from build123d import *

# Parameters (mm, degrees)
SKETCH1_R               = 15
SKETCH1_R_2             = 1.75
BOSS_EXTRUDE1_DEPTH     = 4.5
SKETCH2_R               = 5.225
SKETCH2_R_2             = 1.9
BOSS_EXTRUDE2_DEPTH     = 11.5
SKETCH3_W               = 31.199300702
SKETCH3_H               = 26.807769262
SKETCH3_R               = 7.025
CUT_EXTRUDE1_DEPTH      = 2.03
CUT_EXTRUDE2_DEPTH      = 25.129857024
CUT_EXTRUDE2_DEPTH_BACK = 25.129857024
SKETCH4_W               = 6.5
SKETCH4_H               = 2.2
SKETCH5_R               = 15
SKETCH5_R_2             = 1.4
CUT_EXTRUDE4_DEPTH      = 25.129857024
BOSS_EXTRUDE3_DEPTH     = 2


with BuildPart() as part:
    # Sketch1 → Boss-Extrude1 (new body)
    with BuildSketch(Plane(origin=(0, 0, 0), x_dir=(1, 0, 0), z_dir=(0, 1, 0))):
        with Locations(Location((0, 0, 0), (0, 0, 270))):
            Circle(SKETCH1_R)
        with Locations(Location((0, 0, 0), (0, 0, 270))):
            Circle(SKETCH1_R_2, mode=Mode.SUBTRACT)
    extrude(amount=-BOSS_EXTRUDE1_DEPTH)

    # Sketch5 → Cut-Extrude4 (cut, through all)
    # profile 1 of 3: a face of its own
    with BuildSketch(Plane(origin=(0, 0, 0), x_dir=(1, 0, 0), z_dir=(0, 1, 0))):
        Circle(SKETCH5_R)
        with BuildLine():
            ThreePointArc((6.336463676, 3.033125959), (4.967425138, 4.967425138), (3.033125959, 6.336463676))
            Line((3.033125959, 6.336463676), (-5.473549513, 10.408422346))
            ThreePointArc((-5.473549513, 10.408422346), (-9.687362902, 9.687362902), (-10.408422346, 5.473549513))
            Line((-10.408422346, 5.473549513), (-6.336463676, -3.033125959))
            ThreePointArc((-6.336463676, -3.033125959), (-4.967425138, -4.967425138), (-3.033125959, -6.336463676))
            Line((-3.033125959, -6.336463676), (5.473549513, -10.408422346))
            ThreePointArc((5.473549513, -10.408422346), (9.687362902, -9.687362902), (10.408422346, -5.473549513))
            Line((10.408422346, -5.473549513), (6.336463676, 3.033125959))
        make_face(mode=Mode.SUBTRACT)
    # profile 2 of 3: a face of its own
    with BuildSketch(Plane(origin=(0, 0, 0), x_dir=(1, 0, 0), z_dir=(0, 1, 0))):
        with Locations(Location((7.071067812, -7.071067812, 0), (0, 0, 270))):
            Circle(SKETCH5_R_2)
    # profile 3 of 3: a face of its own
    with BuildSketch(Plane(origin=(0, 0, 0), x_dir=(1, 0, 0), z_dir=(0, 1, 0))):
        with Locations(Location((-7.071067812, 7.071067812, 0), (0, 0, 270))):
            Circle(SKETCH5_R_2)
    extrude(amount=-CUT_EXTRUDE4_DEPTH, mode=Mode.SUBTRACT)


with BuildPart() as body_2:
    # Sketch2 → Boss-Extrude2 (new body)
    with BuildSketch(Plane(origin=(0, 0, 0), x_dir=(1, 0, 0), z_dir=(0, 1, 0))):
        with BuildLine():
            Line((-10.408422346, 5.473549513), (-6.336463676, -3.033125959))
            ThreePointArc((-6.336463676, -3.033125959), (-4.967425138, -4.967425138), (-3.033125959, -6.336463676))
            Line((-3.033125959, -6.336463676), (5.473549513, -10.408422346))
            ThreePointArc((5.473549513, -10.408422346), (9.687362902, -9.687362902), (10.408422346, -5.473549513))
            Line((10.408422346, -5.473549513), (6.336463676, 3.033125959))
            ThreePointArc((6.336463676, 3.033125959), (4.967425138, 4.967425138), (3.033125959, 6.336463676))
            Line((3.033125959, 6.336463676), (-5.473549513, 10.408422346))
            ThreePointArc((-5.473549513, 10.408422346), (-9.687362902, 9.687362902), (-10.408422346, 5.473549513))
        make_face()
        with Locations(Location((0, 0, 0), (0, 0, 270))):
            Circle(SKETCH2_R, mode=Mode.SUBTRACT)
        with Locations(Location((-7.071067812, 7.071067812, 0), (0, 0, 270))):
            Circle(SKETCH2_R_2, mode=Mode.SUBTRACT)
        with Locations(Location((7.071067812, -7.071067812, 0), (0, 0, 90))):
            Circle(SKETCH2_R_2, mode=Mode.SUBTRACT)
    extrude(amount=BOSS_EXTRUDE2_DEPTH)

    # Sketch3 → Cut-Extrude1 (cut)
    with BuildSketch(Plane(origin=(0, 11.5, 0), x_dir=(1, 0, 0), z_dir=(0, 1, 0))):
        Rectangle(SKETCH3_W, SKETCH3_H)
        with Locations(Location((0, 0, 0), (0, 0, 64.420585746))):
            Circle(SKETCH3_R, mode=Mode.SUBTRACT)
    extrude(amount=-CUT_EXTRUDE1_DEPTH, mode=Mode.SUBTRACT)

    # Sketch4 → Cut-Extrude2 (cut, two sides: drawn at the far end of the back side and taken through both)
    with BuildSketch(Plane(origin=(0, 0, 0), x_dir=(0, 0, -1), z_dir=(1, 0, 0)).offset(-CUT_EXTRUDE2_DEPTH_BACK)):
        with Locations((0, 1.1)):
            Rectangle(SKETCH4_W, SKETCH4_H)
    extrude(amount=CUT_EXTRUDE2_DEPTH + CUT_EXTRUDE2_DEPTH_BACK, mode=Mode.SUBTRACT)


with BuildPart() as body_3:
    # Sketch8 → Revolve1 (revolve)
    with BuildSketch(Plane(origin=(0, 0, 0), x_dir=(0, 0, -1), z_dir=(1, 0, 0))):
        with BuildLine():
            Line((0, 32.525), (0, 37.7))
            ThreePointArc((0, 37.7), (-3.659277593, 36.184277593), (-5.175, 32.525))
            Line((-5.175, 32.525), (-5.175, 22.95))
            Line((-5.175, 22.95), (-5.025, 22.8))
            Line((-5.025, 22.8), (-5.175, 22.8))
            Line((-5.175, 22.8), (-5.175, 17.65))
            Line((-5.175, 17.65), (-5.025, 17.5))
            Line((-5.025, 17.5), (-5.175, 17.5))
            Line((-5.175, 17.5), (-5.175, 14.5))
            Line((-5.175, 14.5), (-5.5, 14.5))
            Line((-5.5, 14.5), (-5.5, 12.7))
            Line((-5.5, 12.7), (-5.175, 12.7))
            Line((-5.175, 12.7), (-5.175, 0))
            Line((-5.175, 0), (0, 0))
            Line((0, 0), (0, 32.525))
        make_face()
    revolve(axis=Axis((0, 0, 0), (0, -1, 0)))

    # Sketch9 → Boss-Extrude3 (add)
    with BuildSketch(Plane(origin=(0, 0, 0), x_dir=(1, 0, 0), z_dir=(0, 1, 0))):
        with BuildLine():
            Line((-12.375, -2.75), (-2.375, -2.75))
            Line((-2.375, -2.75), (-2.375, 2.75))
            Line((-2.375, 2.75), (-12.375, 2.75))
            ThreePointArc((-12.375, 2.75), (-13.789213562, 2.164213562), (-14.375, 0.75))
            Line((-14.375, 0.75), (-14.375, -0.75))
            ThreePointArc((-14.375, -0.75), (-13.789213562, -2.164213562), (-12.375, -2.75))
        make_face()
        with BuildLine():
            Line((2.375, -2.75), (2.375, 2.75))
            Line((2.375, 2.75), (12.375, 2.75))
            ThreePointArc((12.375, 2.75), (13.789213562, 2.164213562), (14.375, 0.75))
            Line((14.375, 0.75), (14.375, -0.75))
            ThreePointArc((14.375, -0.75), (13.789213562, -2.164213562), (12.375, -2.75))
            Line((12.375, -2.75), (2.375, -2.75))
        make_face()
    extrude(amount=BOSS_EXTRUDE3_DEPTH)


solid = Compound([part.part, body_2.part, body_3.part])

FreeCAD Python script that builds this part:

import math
import FreeCAD as App
import Part
import Sketcher

V = App.Vector
Q = App.Units.Quantity

doc = App.newDocument("Part")
body = doc.addObject("PartDesign::Body", "Body")

sketch1 = doc.addObject("Sketcher::SketchObject", "Sketch")
body.addObject(sketch1)
sketch1.AttachmentSupport = (doc.XZ_Plane, [""])
sketch1.MapMode = "FlatFace"
sketch1.addGeometry([
    Part.Circle(V(0, 0, 0), V(0, 0, 1), 15),
    Part.Circle(V(0, 0, 0), V(0, 0, 1), 1.8),
], False)
sketch1.addConstraint([
    Sketcher.Constraint("Coincident", 0, 3, -1, 1),
    Sketcher.Constraint("Coincident", 1, 3, -1, 1),
    Sketcher.Constraint("Diameter", 0, 30.0),
    Sketcher.Constraint("Diameter", 1, 3.5),
])
pad1 = doc.addObject("PartDesign::Pad", "Pad")
body.addObject(pad1)
pad1.Profile = sketch1
pad1.Length = 4.5

sketch2 = doc.addObject("Sketcher::SketchObject", "Sketch001")
body.addObject(sketch2)
sketch2.AttachmentSupport = (doc.XZ_Plane, [""])
sketch2.MapMode = "FlatFace"
sketch2.addGeometry([
    Part.Circle(V(0, 0, 0), V(0, 0, 1), 15),
    Part.ArcOfCircle(Part.Circle(V(0, 0, 0), V(0, 0, 1), 7), math.radians(-64), math.radians(-26)),
    Part.LineSegment(V(6.3, -3, 0), V(10.4, 5.5, 0)),
    Part.ArcOfCircle(Part.Circle(V(7.1, 7.1, 0), V(0, 0, 1), 3.7), math.radians(-26), math.radians(116)),
    Part.LineSegment(V(5.5, 10.4, 0), V(-3, 6.3, 0)),
    Part.ArcOfCircle(Part.Circle(V(0, 0, 0), V(0, 0, 1), 7), math.radians(116), math.radians(154)),
    Part.LineSegment(V(-6.3, 3, 0), V(-10.4, -5.5, 0)),
    Part.ArcOfCircle(Part.Circle(V(-7.1, -7.1, 0), V(0, 0, 1), 3.7), math.radians(154), math.radians(296)),
    Part.LineSegment(V(-5.5, -10.4, 0), V(3, -6.3, 0)),
    Part.Circle(V(7.1, 7.1, 0), V(0, 0, 1), 1.4),
    Part.Circle(V(-7.1, -7.1, 0), V(0, 0, 1), 1.4),
], False)
sketch2.addConstraint([
    Sketcher.Constraint("Tangent", 1, 2, 2, 1),
    Sketcher.Constraint("Tangent", 2, 2, 3, 1),
    Sketcher.Constraint("Tangent", 3, 2, 4, 1),
    Sketcher.Constraint("Tangent", 4, 2, 5, 1),
    Sketcher.Constraint("Tangent", 5, 2, 6, 1),
    Sketcher.Constraint("Tangent", 6, 2, 7, 1),
    Sketcher.Constraint("Tangent", 7, 2, 8, 1),
    Sketcher.Constraint("Tangent", 8, 2, 1, 1),
    Sketcher.Constraint("Coincident", 0, 3, -1, 1),
    Sketcher.Constraint("Coincident", 1, 3, -1, 1),
    Sketcher.Constraint("Coincident", 5, 3, -1, 1),
    Sketcher.Constraint("Coincident", 9, 3, 3, 3),
    Sketcher.Constraint("Coincident", 10, 3, 7, 3),
    Sketcher.Constraint("Equal", 1, 5),
    Sketcher.Constraint("Equal", 3, 7),
    Sketcher.Constraint("Equal", 9, 10),
    Sketcher.Constraint("Symmetric", 3, 3, 7, 3, -1, 1),
    Sketcher.Constraint("Diameter", 0, 30.0),
    Sketcher.Constraint("Diameter", 9, 2.8),
    Sketcher.Constraint("Radius", 3, 3.7),
    Sketcher.Constraint("Radius", 1, 7.025),
    Sketcher.Constraint("DistanceY", -1, 1, 2, 2, 5.47355),
    Sketcher.Constraint("DistanceX", -1, 1, 3, 2, 5.47355),
])
pocket1 = doc.addObject("PartDesign::Pocket", "Pocket")
body.addObject(pocket1)
pocket1.Profile = sketch2
pocket1.Length = 25.129857
pocket1.Reversed = True
body2 = doc.addObject("PartDesign::Body", "Body001")

sketch3 = doc.addObject("Sketcher::SketchObject", "Sketch002")
body2.addObject(sketch3)
sketch3.AttachmentSupport = (doc.getObject("XZ_Plane001"), [""])
sketch3.MapMode = "FlatFace"
sketch3.addGeometry([
    Part.LineSegment(V(-10.4, -5.5, 0), V(-6.3, 3, 0)),
    Part.ArcOfCircle(Part.Circle(V(0, 0, 0), V(0, 0, 1), 7), math.radians(116), math.radians(154)),
    Part.LineSegment(V(-3, 6.3, 0), V(5.5, 10.4, 0)),
    Part.ArcOfCircle(Part.Circle(V(7.1, 7.1, 0), V(0, 0, 1), 3.7), math.radians(-26), math.radians(116)),
    Part.LineSegment(V(10.4, 5.5, 0), V(6.3, -3, 0)),
    Part.ArcOfCircle(Part.Circle(V(0, 0, 0), V(0, 0, 1), 7), math.radians(-64), math.radians(-26)),
    Part.LineSegment(V(3, -6.3, 0), V(-5.5, -10.4, 0)),
    Part.ArcOfCircle(Part.Circle(V(-7.1, -7.1, 0), V(0, 0, 1), 3.7), math.radians(154), math.radians(296)),
    Part.Circle(V(7.1, 7.1, 0), V(0, 0, 1), 1.9),
    Part.Circle(V(-7.1, -7.1, 0), V(0, 0, 1), 1.9),
    Part.Circle(V(0, 0, 0), V(0, 0, 1), 5.2),
], False)
sketch3.addConstraint([
    Sketcher.Constraint("Tangent", 0, 2, 1, 2),
    Sketcher.Constraint("Tangent", 1, 1, 2, 1),
    Sketcher.Constraint("Tangent", 2, 2, 3, 2),
    Sketcher.Constraint("Tangent", 3, 1, 4, 1),
    Sketcher.Constraint("Tangent", 4, 2, 5, 2),
    Sketcher.Constraint("Tangent", 5, 1, 6, 1),
    Sketcher.Constraint("Tangent", 6, 2, 7, 2),
    Sketcher.Constraint("Tangent", 7, 1, 0, 1),
    Sketcher.Constraint("Coincident", 1, 3, -1, 1),
    Sketcher.Constraint("Coincident", 5, 3, -1, 1),
    Sketcher.Constraint("Coincident", 10, 3, -1, 1),
    Sketcher.Constraint("Coincident", 8, 3, 3, 3),
    Sketcher.Constraint("Coincident", 9, 3, 7, 3),
    Sketcher.Constraint("Equal", 1, 5),
    Sketcher.Constraint("Equal", 3, 7),
    Sketcher.Constraint("Equal", 8, 9),
    Sketcher.Constraint("Symmetric", 3, 3, 7, 3, -1, 1),
    Sketcher.Constraint("Diameter", 8, 3.8),
    Sketcher.Constraint("Radius", 3, 3.7),
    Sketcher.Constraint("Diameter", 10, 10.45),
    Sketcher.Constraint("Radius", 1, 7.025),
    Sketcher.Constraint("DistanceX", -1, 1, 2, 2, 5.47355),
    Sketcher.Constraint("DistanceY", -1, 1, 3, 1, 5.47355),
])
pad2 = doc.addObject("PartDesign::Pad", "Pad001")
body2.addObject(pad2)
pad2.Profile = sketch3
pad2.Length = 11.5
pad2.Reversed = True

sketch4 = doc.addObject("Sketcher::SketchObject", "Sketch003")
body2.addObject(sketch4)
sketch4.AttachmentSupport = (doc.getObject("XZ_Plane001"), [""])
sketch4.MapMode = "FlatFace"
sketch4.AttachmentOffset = App.Placement(V(0, 0, -11.5), App.Rotation())
sketch4.addGeometry([
    Part.LineSegment(V(-16, -13, 0), V(-16, 13, 0)),
    Part.LineSegment(V(-16, 13, 0), V(16, 13, 0)),
    Part.LineSegment(V(16, 13, 0), V(16, -13, 0)),
    Part.LineSegment(V(16, -13, 0), V(-16, -13, 0)),
    Part.Circle(V(0, 0, 0), V(0, 0, 1), 7),
], False)
sketch4.addConstraint([
    Sketcher.Constraint("Coincident", 0, 2, 1, 1),
    Sketcher.Constraint("Coincident", 1, 2, 2, 1),
    Sketcher.Constraint("Coincident", 2, 2, 3, 1),
    Sketcher.Constraint("Coincident", 3, 2, 0, 1),
    Sketcher.Constraint("Vertical", 0),
    Sketcher.Constraint("Horizontal", 1),
    Sketcher.Constraint("Vertical", 2),
    Sketcher.Constraint("Horizontal", 3),
    Sketcher.Constraint("Coincident", 4, 3, -1, 1),
    Sketcher.Constraint("Symmetric", 0, 2, 2, 2, -1, 1),
    Sketcher.Constraint("Diameter", 4, 14.05),
    Sketcher.Constraint("DistanceX", 1, 1, 1, 2, 31.199301),
    Sketcher.Constraint("DistanceY", 0, 1, 0, 2, 26.807769),
])
pocket2 = doc.addObject("PartDesign::Pocket", "Pocket001")
body2.addObject(pocket2)
pocket2.Profile = sketch4
pocket2.Length = 2.03
pocket2.Reversed = True

sketch5 = doc.addObject("Sketcher::SketchObject", "Sketch004")
body2.addObject(sketch5)
sketch5.AttachmentSupport = (doc.getObject("YZ_Plane001"), [""])
sketch5.MapMode = "FlatFace"
sketch5.addGeometry([
    Part.LineSegment(V(2.2, 3.2, 0), V(0, 3.2, 0)),
    Part.LineSegment(V(0, 3.2, 0), V(0, -3.2, 0)),
    Part.LineSegment(V(0, -3.2, 0), V(2.2, -3.2, 0)),
    Part.LineSegment(V(2.2, -3.2, 0), V(2.2, 3.2, 0)),
], False)
sketch5.addConstraint([
    Sketcher.Constraint("Coincident", 0, 2, 1, 1),
    Sketcher.Constraint("Coincident", 1, 2, 2, 1),
    Sketcher.Constraint("Coincident", 2, 2, 3, 1),
    Sketcher.Constraint("Coincident", 3, 2, 0, 1),
    Sketcher.Constraint("Horizontal", 0),
    Sketcher.Constraint("Vertical", 1),
    Sketcher.Constraint("Horizontal", 2),
    Sketcher.Constraint("Vertical", 3),
    Sketcher.Constraint("Symmetric", 0, 2, 1, 2, -1, 1),
    Sketcher.Constraint("DistanceX", 0, 2, 0, 1, 2.2),
    Sketcher.Constraint("DistanceY", 1, 2, 1, 1, 6.5),
])
pocket3 = doc.addObject("PartDesign::Pocket", "Pocket002")
body2.addObject(pocket3)
pocket3.Profile = sketch5
pocket3.Type = "ThroughAll"
pocket3.Midplane = True
body3 = doc.addObject("PartDesign::Body", "Body002")

sketch6 = doc.addObject("Sketcher::SketchObject", "Sketch005")
body3.addObject(sketch6)
sketch6.AttachmentSupport = (doc.getObject("YZ_Plane002"), [""])
sketch6.MapMode = "FlatFace"
sketch6.addGeometry([
    Part.ArcOfCircle(Part.Circle(V(32.53, 0, 0), V(0, 0, 1), 5.17), math.radians(0), math.radians(90)),
    Part.LineSegment(V(32.52, 5.17, 0), V(22.95, 5.17, 0)),
    Part.LineSegment(V(22.95, 5.17, 0), V(22.8, 5.03, 0)),
    Part.LineSegment(V(22.8, 5.03, 0), V(22.8, 5.17, 0)),
    Part.LineSegment(V(22.8, 5.17, 0), V(17.65, 5.17, 0)),
    Part.LineSegment(V(17.65, 5.17, 0), V(17.5, 5.03, 0)),
    Part.LineSegment(V(17.5, 5.03, 0), V(17.5, 5.17, 0)),
    Part.LineSegment(V(17.5, 5.17, 0), V(14.5, 5.17, 0)),
    Part.LineSegment(V(14.5, 5.17, 0), V(14.5, 5.5, 0)),
    Part.LineSegment(V(14.5, 5.5, 0), V(12.7, 5.5, 0)),
    Part.LineSegment(V(12.7, 5.5, 0), V(12.7, 5.17, 0)),
    Part.LineSegment(V(12.7, 5.17, 0), V(0, 5.17, 0)),
    Part.LineSegment(V(0, 5.17, 0), V(0, 0, 0)),
    Part.LineSegment(V(0, 0, 0), V(37.7, 0, 0)),
], False)
sketch6.addConstraint([
    Sketcher.Constraint("Tangent", 0, 2, 1, 1),
    Sketcher.Constraint("Coincident", 1, 2, 2, 1),
    Sketcher.Constraint("Coincident", 2, 2, 3, 1),
    Sketcher.Constraint("Coincident", 3, 2, 4, 1),
    Sketcher.Constraint("Coincident", 4, 2, 5, 1),
    Sketcher.Constraint("Coincident", 5, 2, 6, 1),
    Sketcher.Constraint("Coincident", 6, 2, 7, 1),
    Sketcher.Constraint("Coincident", 7, 2, 8, 1),
    Sketcher.Constraint("Coincident", 8, 2, 9, 1),
    Sketcher.Constraint("Coincident", 9, 2, 10, 1),
    Sketcher.Constraint("Coincident", 10, 2, 11, 1),
    Sketcher.Constraint("Coincident", 11, 2, 12, 1),
    Sketcher.Constraint("Coincident", 12, 2, 13, 1),
    Sketcher.Constraint("Coincident", 13, 2, 0, 1),
    Sketcher.Constraint("Horizontal", 1),
    Sketcher.Constraint("Vertical", 3),
    Sketcher.Constraint("Horizontal", 4),
    Sketcher.Constraint("Vertical", 6),
    Sketcher.Constraint("Horizontal", 7),
    Sketcher.Constraint("Vertical", 8),
    Sketcher.Constraint("Horizontal", 9),
    Sketcher.Constraint("Vertical", 10),
    Sketcher.Constraint("Horizontal", 11),
    Sketcher.Constraint("Vertical", 12),
    Sketcher.Constraint("Horizontal", 13),
    Sketcher.Constraint("Coincident", 12, 2, -1, 1),
    Sketcher.Constraint("PointOnObject", 0, 3, -1),
    Sketcher.Constraint("Parallel", 2, 5),
    Sketcher.Constraint("Horizontal", 1, 2, 3, 2),
    Sketcher.Constraint("Horizontal", 2, 2, 5, 2),
    Sketcher.Constraint("Horizontal", 4, 2, 6, 2),
    Sketcher.Constraint("Horizontal", 7, 2, 10, 2),
    Sketcher.Constraint("DistanceX", 7, 2, 7, 1, 3.0),
    Sketcher.Constraint("Angle", 2, Q("-135 deg")),
    Sketcher.Constraint("DistanceX", 9, 2, 9, 1, 1.8),
    Sketcher.Constraint("DistanceX", 11, 2, 11, 1, 12.7),
    Sketcher.Constraint("DistanceX", 13, 1, 13, 2, 37.7),
    Sketcher.Constraint("Radius", 0, 5.175),
    Sketcher.Constraint("DistanceX", 4, 2, 4, 1, 5.15),
    Sketcher.Constraint("DistanceY", 3, 1, 3, 2, 0.15),
    Sketcher.Constraint("DistanceY", -1, 1, 8, 2, 5.5),
])
revolution = doc.addObject("PartDesign::Revolution", "Revolution")
body3.addObject(revolution)
revolution.Profile = sketch6
revolution.ReferenceAxis = (sketch6, ["H_Axis"])
revolution.Angle = 360

sketch7 = doc.addObject("Sketcher::SketchObject", "Sketch006")
body3.addObject(sketch7)
sketch7.AttachmentSupport = (doc.getObject("XZ_Plane002"), [""])
sketch7.MapMode = "FlatFace"
sketch7.addGeometry([
    Part.LineSegment(V(-12.4, 2.8, 0), V(-2.4, 2.8, 0)),
    Part.LineSegment(V(-2.4, 2.8, 0), V(-2.4, -2.8, 0)),
    Part.LineSegment(V(-2.4, -2.8, 0), V(-12.4, -2.8, 0)),
    Part.ArcOfCircle(Part.Circle(V(-12.4, -0.7, 0), V(0, 0, 1), 2), math.radians(-180), math.radians(-90)),
    Part.LineSegment(V(-14.4, -0.8, 0), V(-14.4, 0.8, 0)),
    Part.ArcOfCircle(Part.Circle(V(-12.4, 0.7, 0), V(0, 0, 1), 2), math.radians(90), math.radians(180)),
    Part.LineSegment(V(2.4, -2.8, 0), V(2.4, 2.8, 0)),
    Part.LineSegment(V(2.4, 2.8, 0), V(12.4, 2.8, 0)),
    Part.ArcOfCircle(Part.Circle(V(12.4, 0.7, 0), V(0, 0, 1), 2), math.radians(0), math.radians(90)),
    Part.LineSegment(V(14.4, 0.8, 0), V(14.4, -0.8, 0)),
    Part.ArcOfCircle(Part.Circle(V(12.4, -0.7, 0), V(0, 0, 1), 2), math.radians(-90), math.radians(0)),
    Part.LineSegment(V(12.4, -2.8, 0), V(2.4, -2.8, 0)),
], False)
sketch7.addConstraint([
    Sketcher.Constraint("Coincident", 0, 2, 1, 1),
    Sketcher.Constraint("Coincident", 1, 2, 2, 1),
    Sketcher.Constraint("Tangent", 2, 2, 3, 2),
    Sketcher.Constraint("Tangent", 3, 1, 4, 1),
    Sketcher.Constraint("Tangent", 4, 2, 5, 2),
    Sketcher.Constraint("Tangent", 5, 1, 0, 1),
    Sketcher.Constraint("Coincident", 6, 2, 7, 1),
    Sketcher.Constraint("Tangent", 7, 2, 8, 2),
    Sketcher.Constraint("Tangent", 8, 1, 9, 1),
    Sketcher.Constraint("Tangent", 9, 2, 10, 2),
    Sketcher.Constraint("Tangent", 10, 1, 11, 1),
    Sketcher.Constraint("Coincident", 11, 2, 6, 1),
    Sketcher.Constraint("Horizontal", 0),
    Sketcher.Constraint("Vertical", 1),
    Sketcher.Constraint("Horizontal", 2),
    Sketcher.Constraint("Vertical", 4),
    Sketcher.Constraint("Vertical", 6),
    Sketcher.Constraint("Horizontal", 7),
    Sketcher.Constraint("Vertical", 9),
    Sketcher.Constraint("Horizontal", 11),
    Sketcher.Constraint("Equal", 3, 5),
    Sketcher.Constraint("Equal", 5, 8),
    Sketcher.Constraint("Equal", 8, 10),
    Sketcher.Constraint("Symmetric", 3, 3, 8, 3, -1, 1),
    Sketcher.Constraint("Symmetric", 0, 2, 11, 2, -1, 1),
    Sketcher.Constraint("Horizontal", 5, 3, 8, 3),
    Sketcher.Constraint("Radius", 3, 2.0),
    Sketcher.Constraint("DistanceX", 0, 1, 0, 2, 10.0),
    Sketcher.Constraint("DistanceY", 1, 2, 1, 1, 5.5),
    Sketcher.Constraint("DistanceX", 5, 3, 8, 3, 24.75),
])
pad3 = doc.addObject("PartDesign::Pad", "Pad002")
body3.addObject(pad3)
pad3.Profile = sketch7
pad3.Length = 2
pad3.Reversed = True

doc.recompute()
